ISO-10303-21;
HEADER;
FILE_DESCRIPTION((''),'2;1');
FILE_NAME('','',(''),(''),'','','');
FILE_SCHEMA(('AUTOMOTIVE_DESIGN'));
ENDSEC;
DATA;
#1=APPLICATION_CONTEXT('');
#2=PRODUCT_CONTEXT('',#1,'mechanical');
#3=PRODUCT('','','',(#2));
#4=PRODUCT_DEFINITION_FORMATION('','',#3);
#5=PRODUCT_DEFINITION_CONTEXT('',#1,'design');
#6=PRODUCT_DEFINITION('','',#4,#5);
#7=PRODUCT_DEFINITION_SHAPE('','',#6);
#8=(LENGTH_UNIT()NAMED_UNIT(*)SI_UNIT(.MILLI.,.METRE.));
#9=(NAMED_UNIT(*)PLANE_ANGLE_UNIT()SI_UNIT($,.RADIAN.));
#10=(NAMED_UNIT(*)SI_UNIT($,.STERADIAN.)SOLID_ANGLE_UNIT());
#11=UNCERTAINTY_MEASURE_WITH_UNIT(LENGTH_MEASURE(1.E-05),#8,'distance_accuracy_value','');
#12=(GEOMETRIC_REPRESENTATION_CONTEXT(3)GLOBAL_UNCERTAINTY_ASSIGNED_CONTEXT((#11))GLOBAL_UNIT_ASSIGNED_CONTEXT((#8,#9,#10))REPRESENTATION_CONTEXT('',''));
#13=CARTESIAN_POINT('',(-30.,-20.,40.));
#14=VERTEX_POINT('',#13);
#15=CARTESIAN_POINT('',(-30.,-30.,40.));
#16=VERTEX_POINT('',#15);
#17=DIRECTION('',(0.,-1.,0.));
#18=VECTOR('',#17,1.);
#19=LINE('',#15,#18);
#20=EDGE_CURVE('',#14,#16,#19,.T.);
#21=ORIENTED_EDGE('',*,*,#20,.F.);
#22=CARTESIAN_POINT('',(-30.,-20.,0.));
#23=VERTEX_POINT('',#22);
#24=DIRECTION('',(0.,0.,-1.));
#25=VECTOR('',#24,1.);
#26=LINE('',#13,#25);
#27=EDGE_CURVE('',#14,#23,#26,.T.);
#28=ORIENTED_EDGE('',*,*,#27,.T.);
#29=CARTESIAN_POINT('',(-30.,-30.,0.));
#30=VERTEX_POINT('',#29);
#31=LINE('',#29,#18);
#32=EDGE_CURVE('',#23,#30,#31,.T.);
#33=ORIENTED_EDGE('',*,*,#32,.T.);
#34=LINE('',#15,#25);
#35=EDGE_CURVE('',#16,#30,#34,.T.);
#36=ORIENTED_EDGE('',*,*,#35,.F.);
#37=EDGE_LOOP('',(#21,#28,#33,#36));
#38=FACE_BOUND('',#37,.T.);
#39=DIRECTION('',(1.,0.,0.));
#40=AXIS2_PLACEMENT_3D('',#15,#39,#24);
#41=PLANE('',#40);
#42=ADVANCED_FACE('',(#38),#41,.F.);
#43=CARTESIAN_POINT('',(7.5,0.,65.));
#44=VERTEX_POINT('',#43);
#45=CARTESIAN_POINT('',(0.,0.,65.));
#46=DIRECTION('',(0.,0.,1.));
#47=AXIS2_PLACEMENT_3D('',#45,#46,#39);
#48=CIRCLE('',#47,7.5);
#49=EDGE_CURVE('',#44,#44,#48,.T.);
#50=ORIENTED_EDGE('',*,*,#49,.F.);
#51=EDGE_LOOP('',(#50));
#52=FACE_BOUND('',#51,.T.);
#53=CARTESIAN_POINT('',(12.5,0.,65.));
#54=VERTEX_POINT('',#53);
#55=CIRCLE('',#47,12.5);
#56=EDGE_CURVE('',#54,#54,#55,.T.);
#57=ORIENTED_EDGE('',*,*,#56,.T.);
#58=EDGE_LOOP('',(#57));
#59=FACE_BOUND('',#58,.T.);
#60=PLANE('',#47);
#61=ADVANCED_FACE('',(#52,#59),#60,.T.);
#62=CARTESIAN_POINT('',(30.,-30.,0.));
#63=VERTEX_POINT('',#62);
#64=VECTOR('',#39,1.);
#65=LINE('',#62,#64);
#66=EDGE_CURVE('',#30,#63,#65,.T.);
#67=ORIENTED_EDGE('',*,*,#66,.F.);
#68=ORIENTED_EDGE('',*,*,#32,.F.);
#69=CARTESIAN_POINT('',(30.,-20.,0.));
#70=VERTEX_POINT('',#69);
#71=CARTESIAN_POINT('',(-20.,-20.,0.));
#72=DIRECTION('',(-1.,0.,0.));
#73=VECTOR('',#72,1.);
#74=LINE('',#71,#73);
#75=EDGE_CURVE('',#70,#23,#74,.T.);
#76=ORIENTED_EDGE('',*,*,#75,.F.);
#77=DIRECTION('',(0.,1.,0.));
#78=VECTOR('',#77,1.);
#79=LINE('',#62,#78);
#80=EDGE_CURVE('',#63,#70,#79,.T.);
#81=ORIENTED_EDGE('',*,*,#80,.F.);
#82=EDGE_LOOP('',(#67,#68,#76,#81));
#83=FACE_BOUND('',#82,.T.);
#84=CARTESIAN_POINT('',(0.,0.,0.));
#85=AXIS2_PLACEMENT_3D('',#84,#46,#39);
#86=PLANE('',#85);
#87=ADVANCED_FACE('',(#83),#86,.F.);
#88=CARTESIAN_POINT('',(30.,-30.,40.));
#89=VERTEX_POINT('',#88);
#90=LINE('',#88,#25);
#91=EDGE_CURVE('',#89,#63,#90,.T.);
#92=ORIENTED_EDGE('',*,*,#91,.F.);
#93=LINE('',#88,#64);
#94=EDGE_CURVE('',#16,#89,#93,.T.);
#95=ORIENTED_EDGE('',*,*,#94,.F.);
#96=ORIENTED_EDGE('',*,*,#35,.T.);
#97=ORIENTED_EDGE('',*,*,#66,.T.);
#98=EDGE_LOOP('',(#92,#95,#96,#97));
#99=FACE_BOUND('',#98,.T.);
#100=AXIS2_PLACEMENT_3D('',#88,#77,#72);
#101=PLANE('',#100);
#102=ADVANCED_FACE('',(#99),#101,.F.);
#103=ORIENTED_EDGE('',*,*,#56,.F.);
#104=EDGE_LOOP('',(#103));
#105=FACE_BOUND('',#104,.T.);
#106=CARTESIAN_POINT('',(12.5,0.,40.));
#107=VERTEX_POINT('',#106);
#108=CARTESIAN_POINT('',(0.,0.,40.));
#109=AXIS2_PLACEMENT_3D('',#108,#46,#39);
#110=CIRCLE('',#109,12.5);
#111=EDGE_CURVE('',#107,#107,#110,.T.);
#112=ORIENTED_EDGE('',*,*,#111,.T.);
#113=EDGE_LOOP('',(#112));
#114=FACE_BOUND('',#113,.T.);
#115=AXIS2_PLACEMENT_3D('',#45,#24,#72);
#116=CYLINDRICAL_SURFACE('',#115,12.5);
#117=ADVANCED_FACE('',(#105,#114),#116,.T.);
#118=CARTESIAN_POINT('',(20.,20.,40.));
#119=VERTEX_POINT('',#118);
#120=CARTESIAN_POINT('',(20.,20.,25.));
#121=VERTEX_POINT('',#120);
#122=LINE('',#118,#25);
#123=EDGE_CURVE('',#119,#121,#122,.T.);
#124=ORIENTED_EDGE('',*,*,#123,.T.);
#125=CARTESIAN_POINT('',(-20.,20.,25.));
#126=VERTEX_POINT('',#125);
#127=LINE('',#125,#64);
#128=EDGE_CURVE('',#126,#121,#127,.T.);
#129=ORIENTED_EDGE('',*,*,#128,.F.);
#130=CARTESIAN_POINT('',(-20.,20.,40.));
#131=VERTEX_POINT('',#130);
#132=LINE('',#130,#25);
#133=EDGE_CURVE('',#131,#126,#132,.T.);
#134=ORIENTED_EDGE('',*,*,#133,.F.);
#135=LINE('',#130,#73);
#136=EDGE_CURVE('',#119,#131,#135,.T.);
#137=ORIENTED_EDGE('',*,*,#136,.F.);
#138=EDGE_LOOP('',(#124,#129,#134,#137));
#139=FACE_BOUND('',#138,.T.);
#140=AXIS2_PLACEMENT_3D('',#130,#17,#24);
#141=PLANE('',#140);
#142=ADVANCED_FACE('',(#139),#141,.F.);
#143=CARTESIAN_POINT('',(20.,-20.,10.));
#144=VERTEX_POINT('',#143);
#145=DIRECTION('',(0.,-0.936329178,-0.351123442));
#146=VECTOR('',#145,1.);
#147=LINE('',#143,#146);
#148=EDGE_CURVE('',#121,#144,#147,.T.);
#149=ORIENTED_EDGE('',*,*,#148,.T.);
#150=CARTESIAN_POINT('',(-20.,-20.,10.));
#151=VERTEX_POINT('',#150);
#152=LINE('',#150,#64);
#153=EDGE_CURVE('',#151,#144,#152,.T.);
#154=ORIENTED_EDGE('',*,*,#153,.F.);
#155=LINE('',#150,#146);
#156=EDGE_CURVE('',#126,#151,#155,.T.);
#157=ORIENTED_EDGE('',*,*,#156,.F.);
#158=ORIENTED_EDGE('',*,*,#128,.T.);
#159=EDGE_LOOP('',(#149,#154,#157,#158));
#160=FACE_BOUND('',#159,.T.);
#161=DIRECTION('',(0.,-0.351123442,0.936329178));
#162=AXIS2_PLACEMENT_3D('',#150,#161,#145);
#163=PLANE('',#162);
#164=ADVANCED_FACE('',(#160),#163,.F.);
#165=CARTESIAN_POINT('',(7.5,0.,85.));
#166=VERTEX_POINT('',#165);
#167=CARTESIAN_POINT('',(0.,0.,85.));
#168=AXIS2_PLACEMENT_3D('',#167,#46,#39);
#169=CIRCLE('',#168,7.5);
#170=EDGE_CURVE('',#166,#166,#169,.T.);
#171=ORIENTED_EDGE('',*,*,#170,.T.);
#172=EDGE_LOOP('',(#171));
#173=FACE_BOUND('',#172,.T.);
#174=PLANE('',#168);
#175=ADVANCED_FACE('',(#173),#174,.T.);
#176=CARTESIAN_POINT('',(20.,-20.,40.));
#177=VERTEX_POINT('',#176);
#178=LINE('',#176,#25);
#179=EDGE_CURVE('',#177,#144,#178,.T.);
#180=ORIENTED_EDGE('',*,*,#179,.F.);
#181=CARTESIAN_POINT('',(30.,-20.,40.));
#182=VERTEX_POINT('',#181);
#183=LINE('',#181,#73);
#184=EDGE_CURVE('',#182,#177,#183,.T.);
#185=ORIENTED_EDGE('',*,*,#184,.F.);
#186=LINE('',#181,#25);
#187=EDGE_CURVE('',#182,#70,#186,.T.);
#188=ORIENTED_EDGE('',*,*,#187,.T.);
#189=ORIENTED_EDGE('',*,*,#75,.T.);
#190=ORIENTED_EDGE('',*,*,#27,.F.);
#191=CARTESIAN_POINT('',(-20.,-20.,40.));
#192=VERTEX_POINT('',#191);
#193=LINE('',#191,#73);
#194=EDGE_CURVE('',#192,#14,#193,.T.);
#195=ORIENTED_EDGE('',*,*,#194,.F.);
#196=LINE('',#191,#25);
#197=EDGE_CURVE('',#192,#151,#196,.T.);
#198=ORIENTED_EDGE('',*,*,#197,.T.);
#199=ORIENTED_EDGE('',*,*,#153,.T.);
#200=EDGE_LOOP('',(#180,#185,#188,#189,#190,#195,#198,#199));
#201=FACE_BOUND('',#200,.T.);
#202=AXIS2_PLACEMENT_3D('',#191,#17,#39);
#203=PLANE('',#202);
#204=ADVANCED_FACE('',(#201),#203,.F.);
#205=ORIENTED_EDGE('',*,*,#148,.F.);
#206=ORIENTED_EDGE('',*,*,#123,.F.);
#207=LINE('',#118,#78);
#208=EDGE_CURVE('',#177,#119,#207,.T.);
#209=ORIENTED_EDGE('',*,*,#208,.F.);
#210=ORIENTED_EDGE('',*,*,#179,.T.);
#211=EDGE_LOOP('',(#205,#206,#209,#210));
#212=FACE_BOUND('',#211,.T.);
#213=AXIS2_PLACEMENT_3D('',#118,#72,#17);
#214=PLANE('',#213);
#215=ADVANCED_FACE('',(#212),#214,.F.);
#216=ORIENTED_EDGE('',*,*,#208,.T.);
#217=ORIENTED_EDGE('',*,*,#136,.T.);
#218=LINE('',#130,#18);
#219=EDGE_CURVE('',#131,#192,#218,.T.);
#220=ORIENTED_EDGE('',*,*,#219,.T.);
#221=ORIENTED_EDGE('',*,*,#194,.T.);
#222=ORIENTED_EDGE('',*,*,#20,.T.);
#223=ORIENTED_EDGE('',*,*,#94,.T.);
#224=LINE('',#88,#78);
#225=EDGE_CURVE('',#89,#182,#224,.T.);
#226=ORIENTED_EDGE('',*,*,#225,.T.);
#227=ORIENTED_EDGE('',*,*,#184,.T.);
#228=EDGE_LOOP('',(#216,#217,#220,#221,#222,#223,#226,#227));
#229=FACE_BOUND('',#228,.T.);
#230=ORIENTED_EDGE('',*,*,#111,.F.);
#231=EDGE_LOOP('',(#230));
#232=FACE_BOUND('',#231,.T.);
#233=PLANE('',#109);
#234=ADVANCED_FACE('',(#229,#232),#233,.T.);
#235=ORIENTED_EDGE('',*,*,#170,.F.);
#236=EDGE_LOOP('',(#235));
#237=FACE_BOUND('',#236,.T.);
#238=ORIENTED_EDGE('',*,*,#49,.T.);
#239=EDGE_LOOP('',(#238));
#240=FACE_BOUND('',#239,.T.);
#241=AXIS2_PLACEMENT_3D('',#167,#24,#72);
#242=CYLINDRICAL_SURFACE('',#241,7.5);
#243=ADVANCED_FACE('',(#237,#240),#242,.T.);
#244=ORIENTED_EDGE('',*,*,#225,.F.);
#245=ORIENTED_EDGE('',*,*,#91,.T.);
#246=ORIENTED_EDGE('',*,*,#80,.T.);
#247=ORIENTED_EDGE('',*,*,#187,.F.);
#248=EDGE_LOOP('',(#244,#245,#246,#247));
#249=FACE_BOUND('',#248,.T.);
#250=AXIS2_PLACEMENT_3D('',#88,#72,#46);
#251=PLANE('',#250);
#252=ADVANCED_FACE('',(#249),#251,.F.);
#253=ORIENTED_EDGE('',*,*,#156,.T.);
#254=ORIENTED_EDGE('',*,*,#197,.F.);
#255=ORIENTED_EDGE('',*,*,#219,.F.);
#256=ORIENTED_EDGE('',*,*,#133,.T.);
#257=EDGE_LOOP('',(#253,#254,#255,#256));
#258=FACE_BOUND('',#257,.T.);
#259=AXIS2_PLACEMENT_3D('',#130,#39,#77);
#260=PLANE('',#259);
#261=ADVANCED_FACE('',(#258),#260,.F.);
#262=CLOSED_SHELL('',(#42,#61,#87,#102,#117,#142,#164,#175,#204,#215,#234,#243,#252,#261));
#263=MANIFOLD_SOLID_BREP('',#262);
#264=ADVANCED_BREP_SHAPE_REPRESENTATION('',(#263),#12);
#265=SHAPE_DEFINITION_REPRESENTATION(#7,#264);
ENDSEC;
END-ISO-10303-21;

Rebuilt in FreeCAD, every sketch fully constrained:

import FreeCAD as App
import Part
import Sketcher

V = App.Vector
Q = App.Units.Quantity


def add_polygon(sketch, points):
    """Adds a closed chain of lines whose ends are joined by coincident constraints."""
    first, n = sketch.GeometryCount, len(points)
    for a, b in zip(points, points[1:] + points[:1]):
        sketch.addGeometry(Part.LineSegment(App.Vector(*a, 0), App.Vector(*b, 0)), False)
    for i in range(n):
        sketch.addConstraint(Sketcher.Constraint("Coincident", first + i, 2, first + (i + 1) % n, 1))

doc = App.newDocument("Part")
body = doc.addObject("PartDesign::Body", "Body")

sketch1 = doc.addObject("Sketcher::SketchObject", "Sketch")
body.addObject(sketch1)
sketch1.AttachmentSupport = (doc.XY_Plane, [""])
sketch1.MapMode = "FlatFace"
add_polygon(sketch1, [(-20, -20), (-30, -20), (-30, -30), (30, -30), (30, -20), (20, -20), (20, 20), (-20, 20)])
sketch1.addConstraint(Sketcher.Constraint("Horizontal", 0))
sketch1.addConstraint(Sketcher.Constraint("Vertical", 1))
sketch1.addConstraint(Sketcher.Constraint("Horizontal", 2))
sketch1.addConstraint(Sketcher.Constraint("Vertical", 3))
sketch1.addConstraint(Sketcher.Constraint("Horizontal", 4))
sketch1.addConstraint(Sketcher.Constraint("Vertical", 5))
sketch1.addConstraint(Sketcher.Constraint("Horizontal", 6))
sketch1.addConstraint(Sketcher.Constraint("Vertical", 7))
sketch1.addConstraint(Sketcher.Constraint("Symmetric", 4, 2, 6, 2, -1, 1))
sketch1.addConstraint(Sketcher.Constraint("Symmetric", 0, 2, 3, 2, -2))
sketch1.addConstraint(Sketcher.Constraint("Equal", 4, 1))
sketch1.addConstraint(Sketcher.Constraint("Equal", 6, 5))
sketch1.addConstraint(Sketcher.Constraint("DistanceX", 0, 2, 0, 1, Q("10 mm")))
sketch1.addConstraint(Sketcher.Constraint("DistanceX", 2, 1, 2, 2, Q("60 mm")))
pad1 = doc.addObject("PartDesign::Pad", "Pad")
body.addObject(pad1)
pad1.Profile = sketch1
pad1.Length = 40

sketch2 = doc.addObject("Sketcher::SketchObject", "Sketch001")
body.addObject(sketch2)
sketch2.AttachmentSupport = (doc.YZ_Plane, [""])
sketch2.MapMode = "FlatFace"
sketch2.AttachmentOffset = App.Placement(V(0, 0, 20), App.Rotation())
add_polygon(sketch2, [(-20, 10), (-20, 0), (20, 0), (20, 25)])
sketch2.addConstraint(Sketcher.Constraint("Vertical", 0))
sketch2.addConstraint(Sketcher.Constraint("Horizontal", 1))
sketch2.addConstraint(Sketcher.Constraint("Vertical", 2))
sketch2.addConstraint(Sketcher.Constraint("Symmetric", 0, 2, 1, 2, -1, 1))
sketch2.addConstraint(Sketcher.Constraint("DistanceX", 1, 1, 1, 2, Q("40 mm")))
sketch2.addConstraint(Sketcher.Constraint("DistanceY", 0, 2, 0, 1, Q("10 mm")))
sketch2.addConstraint(Sketcher.Constraint("DistanceY", 2, 1, 2, 2, Q("25 mm")))
pocket1 = doc.addObject("PartDesign::Pocket", "Pocket")
body.addObject(pocket1)
pocket1.Profile = sketch2
pocket1.Length = 40

sketch3 = doc.addObject("Sketcher::SketchObject", "Sketch002")
body.addObject(sketch3)
sketch3.AttachmentSupport = (doc.XY_Plane, [""])
sketch3.MapMode = "FlatFace"
sketch3.AttachmentOffset = App.Placement(V(0, 0, 40), App.Rotation())
sketch3.addGeometry(Part.Circle(V(0, 0, 0), V(0, 0, 1), 12), False)
sketch3.addConstraint(Sketcher.Constraint("Coincident", 0, 3, -1, 1))
sketch3.addConstraint(Sketcher.Constraint("Diameter", 0, Q("25 mm")))
pad2 = doc.addObject("PartDesign::Pad", "Pad001")
body.addObject(pad2)
pad2.Profile = sketch3
pad2.Length = 25

sketch4 = doc.addObject("Sketcher::SketchObject", "Sketch003")
body.addObject(sketch4)
sketch4.AttachmentSupport = (doc.XY_Plane, [""])
sketch4.MapMode = "FlatFace"
sketch4.AttachmentOffset = App.Placement(V(0, 0, 65), App.Rotation())
sketch4.addGeometry(Part.Circle(V(0, 0, 0), V(0, 0, 1), 8), False)
sketch4.addConstraint(Sketcher.Constraint("Coincident", 0, 3, -1, 1))
sketch4.addConstraint(Sketcher.Constraint("Diameter", 0, Q("15 mm")))
pad3 = doc.addObject("PartDesign::Pad", "Pad002")
body.addObject(pad3)
pad3.Profile = sketch4
pad3.Length = 20

doc.recompute()
